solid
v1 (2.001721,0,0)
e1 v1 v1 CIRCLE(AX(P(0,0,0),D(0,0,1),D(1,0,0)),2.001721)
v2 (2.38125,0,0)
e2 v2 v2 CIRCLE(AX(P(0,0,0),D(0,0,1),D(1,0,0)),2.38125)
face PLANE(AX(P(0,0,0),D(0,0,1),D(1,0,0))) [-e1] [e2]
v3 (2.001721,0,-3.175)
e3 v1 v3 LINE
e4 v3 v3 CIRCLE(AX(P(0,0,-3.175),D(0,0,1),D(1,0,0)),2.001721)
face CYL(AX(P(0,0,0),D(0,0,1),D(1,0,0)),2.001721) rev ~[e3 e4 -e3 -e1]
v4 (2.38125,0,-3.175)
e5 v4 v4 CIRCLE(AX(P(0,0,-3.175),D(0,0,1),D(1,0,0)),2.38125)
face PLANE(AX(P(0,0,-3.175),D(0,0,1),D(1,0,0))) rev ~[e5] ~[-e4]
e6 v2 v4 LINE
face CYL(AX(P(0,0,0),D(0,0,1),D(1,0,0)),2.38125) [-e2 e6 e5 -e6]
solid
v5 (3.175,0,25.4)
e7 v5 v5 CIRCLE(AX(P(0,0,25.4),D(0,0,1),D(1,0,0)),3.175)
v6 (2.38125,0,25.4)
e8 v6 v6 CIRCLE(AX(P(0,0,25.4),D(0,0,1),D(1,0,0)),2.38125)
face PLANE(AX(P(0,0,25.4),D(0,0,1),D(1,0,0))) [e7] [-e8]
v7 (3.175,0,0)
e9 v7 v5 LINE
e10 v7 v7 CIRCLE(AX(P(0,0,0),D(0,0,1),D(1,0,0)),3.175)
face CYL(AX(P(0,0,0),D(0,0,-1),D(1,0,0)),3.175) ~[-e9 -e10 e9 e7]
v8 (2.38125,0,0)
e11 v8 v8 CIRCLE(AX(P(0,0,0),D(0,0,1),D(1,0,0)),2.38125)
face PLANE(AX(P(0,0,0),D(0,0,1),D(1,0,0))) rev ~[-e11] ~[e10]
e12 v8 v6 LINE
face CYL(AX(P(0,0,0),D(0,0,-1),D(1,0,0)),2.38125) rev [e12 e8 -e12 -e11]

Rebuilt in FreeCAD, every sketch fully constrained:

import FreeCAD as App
import Part
import Sketcher

V = App.Vector
Q = App.Units.Quantity

doc = App.newDocument("Part")
body = doc.addObject("PartDesign::Body", "Body")

sketch1 = doc.addObject("Sketcher::SketchObject", "Sketch")
body.addObject(sketch1)
sketch1.AttachmentSupport = (doc.XY_Plane, [""])
sketch1.MapMode = "FlatFace"
sketch1.addGeometry(Part.Circle(V(0, 0, 0), V(0, 0, 1), 3.2), False)
sketch1.addGeometry(Part.Circle(V(0, 0, 0), V(0, 0, 1), 2.4), False)
sketch1.addConstraint(Sketcher.Constraint("Coincident", 0, 3, -1, 1))
sketch1.addConstraint(Sketcher.Constraint("Coincident", 1, 3, -1, 1))
sketch1.addConstraint(Sketcher.Constraint("Diameter", 0, Q("0.25 in")))
sketch1.addConstraint(Sketcher.Constraint("Diameter", 1, Q("0.1875 in")))
pad1 = doc.addObject("PartDesign::Pad", "Pad")
body.addObject(pad1)
pad1.Profile = sketch1
pad1.Length = Q("1 in")
body2 = doc.addObject("PartDesign::Body", "Body001")

sketch2 = doc.addObject("Sketcher::SketchObject", "Sketch001")
body2.addObject(sketch2)
sketch2.AttachmentSupport = (doc.getObject("XY_Plane001"), [""])
sketch2.MapMode = "FlatFace"
sketch2.addGeometry(Part.Circle(V(0, 0, 0), V(0, 0, 1), 2.4), False)
sketch2.addGeometry(Part.Circle(V(0, 0, 0), V(0, 0, 1), 2), False)
sketch2.addConstraint(Sketcher.Constraint("Coincident", 0, 3, -1, 1))
sketch2.addConstraint(Sketcher.Constraint("Coincident", 1, 3, -1, 1))
sketch2.addConstraint(Sketcher.Constraint("Diameter", 0, Q("0.1875 in")))
sketch2.addConstraint(Sketcher.Constraint("Diameter", 1, Q("4.003442 mm")))
pad2 = doc.addObject("PartDesign::Pad", "Pad001")
body2.addObject(pad2)
pad2.Profile = sketch2
pad2.Length = Q("0.125 in")
pad2.Reversed = True

doc.recompute()
